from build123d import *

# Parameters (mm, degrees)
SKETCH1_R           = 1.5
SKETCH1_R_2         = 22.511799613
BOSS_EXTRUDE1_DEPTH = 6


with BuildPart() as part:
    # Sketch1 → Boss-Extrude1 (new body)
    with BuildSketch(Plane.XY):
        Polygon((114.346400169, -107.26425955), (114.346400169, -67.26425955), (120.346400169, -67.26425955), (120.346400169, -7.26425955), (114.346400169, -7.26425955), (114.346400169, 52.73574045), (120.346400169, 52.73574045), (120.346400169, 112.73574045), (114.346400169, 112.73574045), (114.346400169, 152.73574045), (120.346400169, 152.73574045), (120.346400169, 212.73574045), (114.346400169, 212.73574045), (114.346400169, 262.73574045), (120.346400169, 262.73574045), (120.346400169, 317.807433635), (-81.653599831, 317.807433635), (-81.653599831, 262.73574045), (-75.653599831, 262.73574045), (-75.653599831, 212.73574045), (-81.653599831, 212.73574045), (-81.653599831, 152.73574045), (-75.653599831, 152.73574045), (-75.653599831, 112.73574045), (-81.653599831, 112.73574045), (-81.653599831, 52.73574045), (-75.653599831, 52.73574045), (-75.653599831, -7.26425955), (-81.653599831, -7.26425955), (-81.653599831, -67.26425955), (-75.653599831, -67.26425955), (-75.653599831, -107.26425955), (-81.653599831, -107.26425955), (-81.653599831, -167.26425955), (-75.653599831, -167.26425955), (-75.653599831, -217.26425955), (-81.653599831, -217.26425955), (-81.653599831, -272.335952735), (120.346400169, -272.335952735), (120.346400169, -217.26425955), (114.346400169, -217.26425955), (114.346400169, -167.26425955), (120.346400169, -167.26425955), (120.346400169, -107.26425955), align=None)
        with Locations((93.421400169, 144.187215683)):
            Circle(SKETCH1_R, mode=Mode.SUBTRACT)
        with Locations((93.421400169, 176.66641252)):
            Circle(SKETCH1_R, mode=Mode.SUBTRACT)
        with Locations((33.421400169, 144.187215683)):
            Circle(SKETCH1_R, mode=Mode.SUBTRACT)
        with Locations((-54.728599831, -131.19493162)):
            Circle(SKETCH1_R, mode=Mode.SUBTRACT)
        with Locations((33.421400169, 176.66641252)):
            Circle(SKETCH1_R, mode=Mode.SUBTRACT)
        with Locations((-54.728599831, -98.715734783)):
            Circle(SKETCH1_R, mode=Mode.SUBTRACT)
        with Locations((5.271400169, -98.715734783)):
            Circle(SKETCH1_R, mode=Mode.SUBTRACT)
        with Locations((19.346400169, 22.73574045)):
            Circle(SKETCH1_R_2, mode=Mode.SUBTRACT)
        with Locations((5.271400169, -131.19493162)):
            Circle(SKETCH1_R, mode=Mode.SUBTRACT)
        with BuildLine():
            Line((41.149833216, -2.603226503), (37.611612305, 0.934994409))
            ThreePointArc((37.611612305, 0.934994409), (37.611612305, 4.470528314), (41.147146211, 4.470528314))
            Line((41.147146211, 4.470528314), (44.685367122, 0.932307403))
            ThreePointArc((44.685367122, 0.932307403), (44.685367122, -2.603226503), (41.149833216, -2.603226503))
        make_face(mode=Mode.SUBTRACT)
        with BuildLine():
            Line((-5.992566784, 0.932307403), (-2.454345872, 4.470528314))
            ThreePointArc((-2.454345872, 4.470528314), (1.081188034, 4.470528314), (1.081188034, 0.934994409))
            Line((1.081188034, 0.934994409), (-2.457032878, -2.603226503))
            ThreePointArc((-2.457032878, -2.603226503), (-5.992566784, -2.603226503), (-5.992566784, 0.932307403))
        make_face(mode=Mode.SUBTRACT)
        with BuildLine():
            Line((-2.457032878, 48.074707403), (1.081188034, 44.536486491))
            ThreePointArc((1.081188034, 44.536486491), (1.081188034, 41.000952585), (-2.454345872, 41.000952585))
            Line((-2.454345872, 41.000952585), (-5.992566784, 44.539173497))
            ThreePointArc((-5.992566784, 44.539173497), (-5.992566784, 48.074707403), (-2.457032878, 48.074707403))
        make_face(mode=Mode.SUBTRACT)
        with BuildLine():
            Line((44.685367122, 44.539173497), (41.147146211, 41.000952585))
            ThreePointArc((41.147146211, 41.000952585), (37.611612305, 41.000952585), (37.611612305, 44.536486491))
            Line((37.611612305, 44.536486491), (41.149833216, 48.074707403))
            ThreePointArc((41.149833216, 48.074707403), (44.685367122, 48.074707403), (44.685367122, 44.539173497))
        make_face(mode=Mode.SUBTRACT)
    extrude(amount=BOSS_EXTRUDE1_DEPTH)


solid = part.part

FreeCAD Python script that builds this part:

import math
import FreeCAD as App
import Part
import Sketcher
Q = App.Units.Quantity


def add_polygon(sketch, points):
    """Adds a closed chain of lines whose ends are joined by coincident constraints."""
    first, n = sketch.GeometryCount, len(points)
    for a, b in zip(points, points[1:] + points[:1]):
        sketch.addGeometry(Part.LineSegment(App.Vector(*a, 0), App.Vector(*b, 0)), False)
    for i in range(n):
        sketch.addConstraint(Sketcher.Constraint("Coincident", first + i, 2, first + (i + 1) % n, 1))

doc = App.newDocument("Part")
body = doc.addObject("PartDesign::Body", "Body")

# Sketch on XY plane
sketch1 = doc.addObject("Sketcher::SketchObject", "Sketch")
body.addObject(sketch1)
sketch1.AttachmentSupport = (doc.XY_Plane, [""])
sketch1.MapMode = "FlatFace"
add_polygon(sketch1, [(114.3, -107.3), (114.3, -67.3), (120.3, -67.3), (120.3, -7.3), (114.3, -7.3), (114.3, 52.7), (120.3, 52.7), (120.3, 112.7), (114.3, 112.7), (114.3, 152.7), (120.3, 152.7), (120.3, 212.7), (114.3, 212.7), (114.3, 262.7), (120.3, 262.7), (120.3, 317.8), (-81.7, 317.8), (-81.7, 262.7), (-75.7, 262.7), (-75.7, 212.7), (-81.7, 212.7), (-81.7, 152.7), (-75.7, 152.7), (-75.7, 112.7), (-81.7, 112.7), (-81.7, 52.7), (-75.7, 52.7), (-75.7, -7.3), (-81.7, -7.3), (-81.7, -67.3), (-75.7, -67.3), (-75.7, -107.3), (-81.7, -107.3), (-81.7, -167.3), (-75.7, -167.3), (-75.7, -217.3), (-81.7, -217.3), (-81.7, -272.3), (120.3, -272.3), (120.3, -217.3), (114.3, -217.3), (114.3, -167.3), (120.3, -167.3), (120.3, -107.3)])  # lines 0-43
sketch1.addGeometry(Part.Circle(App.Vector(-54.7, -131.2, 0), App.Vector(0, 0, 1), 1.5), False)  # 44
sketch1.addGeometry(Part.Circle(App.Vector(-54.7, -98.7, 0), App.Vector(0, 0, 1), 1.5), False)  # 45
sketch1.addGeometry(Part.Circle(App.Vector(5.3, -131.2, 0), App.Vector(0, 0, 1), 1.5), False)  # 46
sketch1.addGeometry(Part.Circle(App.Vector(5.3, -98.7, 0), App.Vector(0, 0, 1), 1.5), False)  # 47
sketch1.addGeometry(Part.ArcOfCircle(Part.Circle(App.Vector(-4.2, -0.8, 0), App.Vector(0, 0, 1), 2.5), math.radians(135), math.radians(315)), False)  # 48
sketch1.addGeometry(Part.LineSegment(App.Vector(-6, 0.9, 0), App.Vector(-2.5, 4.5, 0)), False)  # 49
sketch1.addGeometry(Part.ArcOfCircle(Part.Circle(App.Vector(-0.7, 2.7, 0), App.Vector(0, 0, 1), 2.5), math.radians(-45), math.radians(135)), False)  # 50
sketch1.addGeometry(Part.LineSegment(App.Vector(1.1, 0.9, 0), App.Vector(-2.5, -2.6, 0)), False)  # 51
sketch1.addGeometry(Part.ArcOfCircle(Part.Circle(App.Vector(42.9, -0.8, 0), App.Vector(0, 0, 1), 2.5), math.radians(-135), math.radians(45)), False)  # 52
sketch1.addGeometry(Part.LineSegment(App.Vector(41.1, -2.6, 0), App.Vector(37.6, 0.9, 0)), False)  # 53
sketch1.addGeometry(Part.ArcOfCircle(Part.Circle(App.Vector(39.4, 2.7, 0), App.Vector(0, 0, 1), 2.5), math.radians(45), math.radians(225)), False)  # 54
sketch1.addGeometry(Part.LineSegment(App.Vector(41.1, 4.5, 0), App.Vector(44.7, 0.9, 0)), False)  # 55
sketch1.addGeometry(Part.ArcOfCircle(Part.Circle(App.Vector(-4.2, 46.3, 0), App.Vector(0, 0, 1), 2.5), math.radians(45), math.radians(225)), False)  # 56
sketch1.addGeometry(Part.LineSegment(App.Vector(-2.5, 48.1, 0), App.Vector(1.1, 44.5, 0)), False)  # 57
sketch1.addGeometry(Part.ArcOfCircle(Part.Circle(App.Vector(-0.7, 42.8, 0), App.Vector(0, 0, 1), 2.5), math.radians(-135), math.radians(45)), False)  # 58
sketch1.addGeometry(Part.LineSegment(App.Vector(-2.5, 41, 0), App.Vector(-6, 44.5, 0)), False)  # 59
sketch1.addGeometry(Part.Circle(App.Vector(19.3, 22.7, 0), App.Vector(0, 0, 1), 22.5), False)  # 60
sketch1.addGeometry(Part.ArcOfCircle(Part.Circle(App.Vector(42.9, 46.3, 0), App.Vector(0, 0, 1), 2.5), math.radians(-45), math.radians(135)), False)  # 61
sketch1.addGeometry(Part.LineSegment(App.Vector(44.7, 44.5, 0), App.Vector(41.1, 41, 0)), False)  # 62
sketch1.addGeometry(Part.ArcOfCircle(Part.Circle(App.Vector(39.4, 42.8, 0), App.Vector(0, 0, 1), 2.5), math.radians(135), math.radians(315)), False)  # 63
sketch1.addGeometry(Part.LineSegment(App.Vector(37.6, 44.5, 0), App.Vector(41.1, 48.1, 0)), False)  # 64
sketch1.addGeometry(Part.Circle(App.Vector(33.4, 144.2, 0), App.Vector(0, 0, 1), 1.5), False)  # 65
sketch1.addGeometry(Part.Circle(App.Vector(33.4, 176.7, 0), App.Vector(0, 0, 1), 1.5), False)  # 66
sketch1.addGeometry(Part.Circle(App.Vector(93.4, 144.2, 0), App.Vector(0, 0, 1), 1.5), False)  # 67
sketch1.addGeometry(Part.Circle(App.Vector(93.4, 176.7, 0), App.Vector(0, 0, 1), 1.5), False)  # 68
sketch1.addConstraint([
    Sketcher.Constraint("Tangent", 48, 1, 49, 1),
    Sketcher.Constraint("Tangent", 49, 2, 50, 2),
    Sketcher.Constraint("Tangent", 50, 1, 51, 1),
    Sketcher.Constraint("Tangent", 51, 2, 48, 2),
    Sketcher.Constraint("Tangent", 52, 1, 53, 1),
    Sketcher.Constraint("Tangent", 53, 2, 54, 2),
    Sketcher.Constraint("Tangent", 54, 1, 55, 1),
    Sketcher.Constraint("Tangent", 55, 2, 52, 2),
    Sketcher.Constraint("Tangent", 56, 1, 57, 1),
    Sketcher.Constraint("Tangent", 57, 2, 58, 2),
    Sketcher.Constraint("Tangent", 58, 1, 59, 1),
    Sketcher.Constraint("Tangent", 59, 2, 56, 2),
    Sketcher.Constraint("Tangent", 61, 1, 62, 1),
    Sketcher.Constraint("Tangent", 62, 2, 63, 2),
    Sketcher.Constraint("Tangent", 63, 1, 64, 1),
    Sketcher.Constraint("Tangent", 64, 2, 61, 2),
    Sketcher.Constraint("Vertical", 0),
    Sketcher.Constraint("Horizontal", 1),
    Sketcher.Constraint("Vertical", 2),
    Sketcher.Constraint("Horizontal", 3),
    Sketcher.Constraint("Vertical", 4),
    Sketcher.Constraint("Horizontal", 5),
    Sketcher.Constraint("Vertical", 6),
    Sketcher.Constraint("Horizontal", 7),
    Sketcher.Constraint("Vertical", 8),
    Sketcher.Constraint("Horizontal", 9),
    Sketcher.Constraint("Vertical", 10),
    Sketcher.Constraint("Horizontal", 11),
    Sketcher.Constraint("Vertical", 12),
    Sketcher.Constraint("Horizontal", 13),
    Sketcher.Constraint("Vertical", 14),
    Sketcher.Constraint("Horizontal", 15),
    Sketcher.Constraint("Vertical", 16),
    Sketcher.Constraint("Horizontal", 17),
    Sketcher.Constraint("Vertical", 18),
    Sketcher.Constraint("Horizontal", 19),
    Sketcher.Constraint("Vertical", 20),
    Sketcher.Constraint("Horizontal", 21),
    Sketcher.Constraint("Vertical", 22),
    Sketcher.Constraint("Horizontal", 23),
    Sketcher.Constraint("Vertical", 24),
    Sketcher.Constraint("Horizontal", 25),
    Sketcher.Constraint("Vertical", 26),
    Sketcher.Constraint("Horizontal", 27),
    Sketcher.Constraint("Vertical", 28),
    Sketcher.Constraint("Horizontal", 29),
    Sketcher.Constraint("Vertical", 30),
    Sketcher.Constraint("Horizontal", 31),
    Sketcher.Constraint("Vertical", 32),
    Sketcher.Constraint("Horizontal", 33),
    Sketcher.Constraint("Vertical", 34),
    Sketcher.Constraint("Horizontal", 35),
    Sketcher.Constraint("Vertical", 36),
    Sketcher.Constraint("Horizontal", 37),
    Sketcher.Constraint("Vertical", 38),
    Sketcher.Constraint("Horizontal", 39),
    Sketcher.Constraint("Vertical", 40),
    Sketcher.Constraint("Horizontal", 41),
    Sketcher.Constraint("Vertical", 42),
    Sketcher.Constraint("Horizontal", 43),
    Sketcher.Constraint("Equal", 44, 45),
    Sketcher.Constraint("Equal", 45, 46),
    Sketcher.Constraint("Equal", 46, 47),
    Sketcher.Constraint("Equal", 48, 50),
    Sketcher.Constraint("Equal", 50, 52),
    Sketcher.Constraint("Equal", 52, 54),
    Sketcher.Constraint("Equal", 54, 56),
    Sketcher.Constraint("Equal", 56, 58),
    Sketcher.Constraint("Equal", 58, 61),
    Sketcher.Constraint("Equal", 61, 63),
    Sketcher.Constraint("Equal", 47, 65),
    Sketcher.Constraint("Equal", 65, 66),
    Sketcher.Constraint("Equal", 66, 67),
    Sketcher.Constraint("Equal", 67, 68),
    Sketcher.Constraint("Perpendicular", 51, 53),
    Sketcher.Constraint("Parallel", 55, 57),
    Sketcher.Constraint("Perpendicular", 59, 62),
    Sketcher.Constraint("Horizontal", 44, 3, 46, 3),
    Sketcher.Constraint("Horizontal", 45, 3, 47, 3),
    Sketcher.Constraint("Horizontal", 48, 3, 52, 3),
    Sketcher.Constraint("Horizontal", 50, 3, 54, 3),
    Sketcher.Constraint("Horizontal", 56, 3, 61, 3),
    Sketcher.Constraint("Horizontal", 58, 3, 63, 3),
    Sketcher.Constraint("Horizontal", 65, 3, 67, 3),
    Sketcher.Constraint("Horizontal", 66, 3, 68, 3),
    Sketcher.Constraint("Horizontal", 13, 2, 16, 2),
    Sketcher.Constraint("Horizontal", 11, 2, 18, 2),
    Sketcher.Constraint("Horizontal", 9, 2, 20, 2),
    Sketcher.Constraint("Horizontal", 7, 2, 22, 2),
    Sketcher.Constraint("Horizontal", 5, 2, 24, 2),
    Sketcher.Constraint("Horizontal", 3, 2, 26, 2),
    Sketcher.Constraint("Horizontal", 1, 2, 28, 2),
    Sketcher.Constraint("Horizontal", 35, 2, 38, 2),
    Sketcher.Constraint("Horizontal", 33, 2, 40, 2),
    Sketcher.Constraint("Horizontal", 31, 2, 42, 2),
    Sketcher.Constraint("Horizontal", 51, 2, 52, 1),
    Sketcher.Constraint("Vertical", 44, 3, 45, 3),
    Sketcher.Constraint("Vertical", 46, 3, 47, 3),
    Sketcher.Constraint("Vertical", 48, 3, 56, 3),
    Sketcher.Constraint("Vertical", 50, 3, 58, 3),
    Sketcher.Constraint("Vertical", 52, 3, 61, 3),
    Sketcher.Constraint("Vertical", 65, 3, 66, 3),
    Sketcher.Constraint("Vertical", 67, 3, 68, 3),
    Sketcher.Constraint("Vertical", 0, 2, 3, 2),
    Sketcher.Constraint("Vertical", 2, 2, 5, 2),
    Sketcher.Constraint("Vertical", 4, 2, 7, 2),
    Sketcher.Constraint("Vertical", 6, 2, 9, 2),
    Sketcher.Constraint("Vertical", 8, 2, 11, 2),
    Sketcher.Constraint("Vertical", 10, 2, 13, 2),
    Sketcher.Constraint("Vertical", 16, 2, 19, 2),
    Sketcher.Constraint("Vertical", 18, 2, 21, 2),
    Sketcher.Constraint("Vertical", 20, 2, 23, 2),
    Sketcher.Constraint("Vertical", 22, 2, 25, 2),
    Sketcher.Constraint("Vertical", 24, 2, 27, 2),
    Sketcher.Constraint("Vertical", 26, 2, 29, 2),
    Sketcher.Constraint("Vertical", 28, 2, 31, 2),
    Sketcher.Constraint("Vertical", 30, 2, 33, 2),
    Sketcher.Constraint("Vertical", 32, 2, 35, 2),
    Sketcher.Constraint("Vertical", 14, 2, 37, 2),
    Sketcher.Constraint("Vertical", 12, 2, 39, 2),
    Sketcher.Constraint("Vertical", 38, 2, 41, 2),
    Sketcher.Constraint("Equal", 13, 17),
    Sketcher.Constraint("Equal", 2, 4),
    Sketcher.Constraint("Equal", 4, 6),
    Sketcher.Constraint("Equal", 0, 8),
    Sketcher.Constraint("Equal", 6, 10),
    Sketcher.Constraint("Equal", 28, 32),
    Sketcher.Constraint("Equal", 18, 34),
    Sketcher.Constraint("Equal", 16, 36),
    Sketcher.Constraint("Diameter", 44, Q("3 mm")),
    Sketcher.Constraint("Radius", 48, Q("2.5 mm")),
    Sketcher.Constraint("DistanceX", 1, 1, 1, 2, Q("6 mm")),
    Sketcher.Constraint("DistanceX", 15, 2, 15, 1, Q("202 mm")),
    Sketcher.Constraint("DistanceY", 0, 1, 0, 2, Q("40 mm")),
    Sketcher.Constraint("DistanceY", 2, 1, 2, 2, Q("60 mm")),
    Sketcher.Constraint("DistanceY", 12, 1, 12, 2, Q("50 mm")),
    Sketcher.Constraint("Diameter", 60, Q("45.023599 mm")),
    Sketcher.Constraint("Distance", 49, Q("5.0038 mm")),
    Sketcher.Constraint("DistanceX", 44, 3, -1, 1, Q("54.7286 mm")),
    Sketcher.Constraint("DistanceX", -1, 1, 46, 3, Q("5.2714 mm")),
    Sketcher.Constraint("DistanceX", 48, 3, -1, 1, Q("4.2248 mm")),
    Sketcher.Constraint("DistanceX", -1, 1, 52, 3, Q("42.9176 mm")),
    Sketcher.Constraint("DistanceX", -1, 1, 60, 3, Q("19.3464 mm")),
    Sketcher.Constraint("DistanceX", -1, 1, 65, 3, Q("33.4214 mm")),
    Sketcher.Constraint("DistanceX", -1, 1, 67, 3, Q("93.4214 mm")),
    Sketcher.Constraint("DistanceX", -1, 1, 0, 2, Q("114.3464 mm")),
    Sketcher.Constraint("DistanceY", 14, 1, 14, 2, Q("55.071693 mm")),
    Sketcher.Constraint("DistanceY", 44, 3, -1, 1, Q("131.194932 mm")),
    Sketcher.Constraint("DistanceY", 48, 3, -1, 1, Q("0.83546 mm")),
    Sketcher.Constraint("DistanceY", -1, 1, 56, 3, Q("46.30694 mm")),
    Sketcher.Constraint("DistanceY", -1, 1, 60, 3, Q("22.73574 mm")),
    Sketcher.Constraint("DistanceY", 0, 2, -1, 1, Q("67.26426 mm")),
    Sketcher.Constraint("DistanceY", 45, 3, -1, 1, Q("98.715735 mm")),
    Sketcher.Constraint("DistanceY", -1, 1, 65, 3, Q("144.187216 mm")),
    Sketcher.Constraint("DistanceY", -1, 1, 66, 3, Q("176.666413 mm")),
])
pad1 = doc.addObject("PartDesign::Pad", "Pad")
body.addObject(pad1)
pad1.Profile = sketch1
pad1.Length = 6

doc.recompute()
